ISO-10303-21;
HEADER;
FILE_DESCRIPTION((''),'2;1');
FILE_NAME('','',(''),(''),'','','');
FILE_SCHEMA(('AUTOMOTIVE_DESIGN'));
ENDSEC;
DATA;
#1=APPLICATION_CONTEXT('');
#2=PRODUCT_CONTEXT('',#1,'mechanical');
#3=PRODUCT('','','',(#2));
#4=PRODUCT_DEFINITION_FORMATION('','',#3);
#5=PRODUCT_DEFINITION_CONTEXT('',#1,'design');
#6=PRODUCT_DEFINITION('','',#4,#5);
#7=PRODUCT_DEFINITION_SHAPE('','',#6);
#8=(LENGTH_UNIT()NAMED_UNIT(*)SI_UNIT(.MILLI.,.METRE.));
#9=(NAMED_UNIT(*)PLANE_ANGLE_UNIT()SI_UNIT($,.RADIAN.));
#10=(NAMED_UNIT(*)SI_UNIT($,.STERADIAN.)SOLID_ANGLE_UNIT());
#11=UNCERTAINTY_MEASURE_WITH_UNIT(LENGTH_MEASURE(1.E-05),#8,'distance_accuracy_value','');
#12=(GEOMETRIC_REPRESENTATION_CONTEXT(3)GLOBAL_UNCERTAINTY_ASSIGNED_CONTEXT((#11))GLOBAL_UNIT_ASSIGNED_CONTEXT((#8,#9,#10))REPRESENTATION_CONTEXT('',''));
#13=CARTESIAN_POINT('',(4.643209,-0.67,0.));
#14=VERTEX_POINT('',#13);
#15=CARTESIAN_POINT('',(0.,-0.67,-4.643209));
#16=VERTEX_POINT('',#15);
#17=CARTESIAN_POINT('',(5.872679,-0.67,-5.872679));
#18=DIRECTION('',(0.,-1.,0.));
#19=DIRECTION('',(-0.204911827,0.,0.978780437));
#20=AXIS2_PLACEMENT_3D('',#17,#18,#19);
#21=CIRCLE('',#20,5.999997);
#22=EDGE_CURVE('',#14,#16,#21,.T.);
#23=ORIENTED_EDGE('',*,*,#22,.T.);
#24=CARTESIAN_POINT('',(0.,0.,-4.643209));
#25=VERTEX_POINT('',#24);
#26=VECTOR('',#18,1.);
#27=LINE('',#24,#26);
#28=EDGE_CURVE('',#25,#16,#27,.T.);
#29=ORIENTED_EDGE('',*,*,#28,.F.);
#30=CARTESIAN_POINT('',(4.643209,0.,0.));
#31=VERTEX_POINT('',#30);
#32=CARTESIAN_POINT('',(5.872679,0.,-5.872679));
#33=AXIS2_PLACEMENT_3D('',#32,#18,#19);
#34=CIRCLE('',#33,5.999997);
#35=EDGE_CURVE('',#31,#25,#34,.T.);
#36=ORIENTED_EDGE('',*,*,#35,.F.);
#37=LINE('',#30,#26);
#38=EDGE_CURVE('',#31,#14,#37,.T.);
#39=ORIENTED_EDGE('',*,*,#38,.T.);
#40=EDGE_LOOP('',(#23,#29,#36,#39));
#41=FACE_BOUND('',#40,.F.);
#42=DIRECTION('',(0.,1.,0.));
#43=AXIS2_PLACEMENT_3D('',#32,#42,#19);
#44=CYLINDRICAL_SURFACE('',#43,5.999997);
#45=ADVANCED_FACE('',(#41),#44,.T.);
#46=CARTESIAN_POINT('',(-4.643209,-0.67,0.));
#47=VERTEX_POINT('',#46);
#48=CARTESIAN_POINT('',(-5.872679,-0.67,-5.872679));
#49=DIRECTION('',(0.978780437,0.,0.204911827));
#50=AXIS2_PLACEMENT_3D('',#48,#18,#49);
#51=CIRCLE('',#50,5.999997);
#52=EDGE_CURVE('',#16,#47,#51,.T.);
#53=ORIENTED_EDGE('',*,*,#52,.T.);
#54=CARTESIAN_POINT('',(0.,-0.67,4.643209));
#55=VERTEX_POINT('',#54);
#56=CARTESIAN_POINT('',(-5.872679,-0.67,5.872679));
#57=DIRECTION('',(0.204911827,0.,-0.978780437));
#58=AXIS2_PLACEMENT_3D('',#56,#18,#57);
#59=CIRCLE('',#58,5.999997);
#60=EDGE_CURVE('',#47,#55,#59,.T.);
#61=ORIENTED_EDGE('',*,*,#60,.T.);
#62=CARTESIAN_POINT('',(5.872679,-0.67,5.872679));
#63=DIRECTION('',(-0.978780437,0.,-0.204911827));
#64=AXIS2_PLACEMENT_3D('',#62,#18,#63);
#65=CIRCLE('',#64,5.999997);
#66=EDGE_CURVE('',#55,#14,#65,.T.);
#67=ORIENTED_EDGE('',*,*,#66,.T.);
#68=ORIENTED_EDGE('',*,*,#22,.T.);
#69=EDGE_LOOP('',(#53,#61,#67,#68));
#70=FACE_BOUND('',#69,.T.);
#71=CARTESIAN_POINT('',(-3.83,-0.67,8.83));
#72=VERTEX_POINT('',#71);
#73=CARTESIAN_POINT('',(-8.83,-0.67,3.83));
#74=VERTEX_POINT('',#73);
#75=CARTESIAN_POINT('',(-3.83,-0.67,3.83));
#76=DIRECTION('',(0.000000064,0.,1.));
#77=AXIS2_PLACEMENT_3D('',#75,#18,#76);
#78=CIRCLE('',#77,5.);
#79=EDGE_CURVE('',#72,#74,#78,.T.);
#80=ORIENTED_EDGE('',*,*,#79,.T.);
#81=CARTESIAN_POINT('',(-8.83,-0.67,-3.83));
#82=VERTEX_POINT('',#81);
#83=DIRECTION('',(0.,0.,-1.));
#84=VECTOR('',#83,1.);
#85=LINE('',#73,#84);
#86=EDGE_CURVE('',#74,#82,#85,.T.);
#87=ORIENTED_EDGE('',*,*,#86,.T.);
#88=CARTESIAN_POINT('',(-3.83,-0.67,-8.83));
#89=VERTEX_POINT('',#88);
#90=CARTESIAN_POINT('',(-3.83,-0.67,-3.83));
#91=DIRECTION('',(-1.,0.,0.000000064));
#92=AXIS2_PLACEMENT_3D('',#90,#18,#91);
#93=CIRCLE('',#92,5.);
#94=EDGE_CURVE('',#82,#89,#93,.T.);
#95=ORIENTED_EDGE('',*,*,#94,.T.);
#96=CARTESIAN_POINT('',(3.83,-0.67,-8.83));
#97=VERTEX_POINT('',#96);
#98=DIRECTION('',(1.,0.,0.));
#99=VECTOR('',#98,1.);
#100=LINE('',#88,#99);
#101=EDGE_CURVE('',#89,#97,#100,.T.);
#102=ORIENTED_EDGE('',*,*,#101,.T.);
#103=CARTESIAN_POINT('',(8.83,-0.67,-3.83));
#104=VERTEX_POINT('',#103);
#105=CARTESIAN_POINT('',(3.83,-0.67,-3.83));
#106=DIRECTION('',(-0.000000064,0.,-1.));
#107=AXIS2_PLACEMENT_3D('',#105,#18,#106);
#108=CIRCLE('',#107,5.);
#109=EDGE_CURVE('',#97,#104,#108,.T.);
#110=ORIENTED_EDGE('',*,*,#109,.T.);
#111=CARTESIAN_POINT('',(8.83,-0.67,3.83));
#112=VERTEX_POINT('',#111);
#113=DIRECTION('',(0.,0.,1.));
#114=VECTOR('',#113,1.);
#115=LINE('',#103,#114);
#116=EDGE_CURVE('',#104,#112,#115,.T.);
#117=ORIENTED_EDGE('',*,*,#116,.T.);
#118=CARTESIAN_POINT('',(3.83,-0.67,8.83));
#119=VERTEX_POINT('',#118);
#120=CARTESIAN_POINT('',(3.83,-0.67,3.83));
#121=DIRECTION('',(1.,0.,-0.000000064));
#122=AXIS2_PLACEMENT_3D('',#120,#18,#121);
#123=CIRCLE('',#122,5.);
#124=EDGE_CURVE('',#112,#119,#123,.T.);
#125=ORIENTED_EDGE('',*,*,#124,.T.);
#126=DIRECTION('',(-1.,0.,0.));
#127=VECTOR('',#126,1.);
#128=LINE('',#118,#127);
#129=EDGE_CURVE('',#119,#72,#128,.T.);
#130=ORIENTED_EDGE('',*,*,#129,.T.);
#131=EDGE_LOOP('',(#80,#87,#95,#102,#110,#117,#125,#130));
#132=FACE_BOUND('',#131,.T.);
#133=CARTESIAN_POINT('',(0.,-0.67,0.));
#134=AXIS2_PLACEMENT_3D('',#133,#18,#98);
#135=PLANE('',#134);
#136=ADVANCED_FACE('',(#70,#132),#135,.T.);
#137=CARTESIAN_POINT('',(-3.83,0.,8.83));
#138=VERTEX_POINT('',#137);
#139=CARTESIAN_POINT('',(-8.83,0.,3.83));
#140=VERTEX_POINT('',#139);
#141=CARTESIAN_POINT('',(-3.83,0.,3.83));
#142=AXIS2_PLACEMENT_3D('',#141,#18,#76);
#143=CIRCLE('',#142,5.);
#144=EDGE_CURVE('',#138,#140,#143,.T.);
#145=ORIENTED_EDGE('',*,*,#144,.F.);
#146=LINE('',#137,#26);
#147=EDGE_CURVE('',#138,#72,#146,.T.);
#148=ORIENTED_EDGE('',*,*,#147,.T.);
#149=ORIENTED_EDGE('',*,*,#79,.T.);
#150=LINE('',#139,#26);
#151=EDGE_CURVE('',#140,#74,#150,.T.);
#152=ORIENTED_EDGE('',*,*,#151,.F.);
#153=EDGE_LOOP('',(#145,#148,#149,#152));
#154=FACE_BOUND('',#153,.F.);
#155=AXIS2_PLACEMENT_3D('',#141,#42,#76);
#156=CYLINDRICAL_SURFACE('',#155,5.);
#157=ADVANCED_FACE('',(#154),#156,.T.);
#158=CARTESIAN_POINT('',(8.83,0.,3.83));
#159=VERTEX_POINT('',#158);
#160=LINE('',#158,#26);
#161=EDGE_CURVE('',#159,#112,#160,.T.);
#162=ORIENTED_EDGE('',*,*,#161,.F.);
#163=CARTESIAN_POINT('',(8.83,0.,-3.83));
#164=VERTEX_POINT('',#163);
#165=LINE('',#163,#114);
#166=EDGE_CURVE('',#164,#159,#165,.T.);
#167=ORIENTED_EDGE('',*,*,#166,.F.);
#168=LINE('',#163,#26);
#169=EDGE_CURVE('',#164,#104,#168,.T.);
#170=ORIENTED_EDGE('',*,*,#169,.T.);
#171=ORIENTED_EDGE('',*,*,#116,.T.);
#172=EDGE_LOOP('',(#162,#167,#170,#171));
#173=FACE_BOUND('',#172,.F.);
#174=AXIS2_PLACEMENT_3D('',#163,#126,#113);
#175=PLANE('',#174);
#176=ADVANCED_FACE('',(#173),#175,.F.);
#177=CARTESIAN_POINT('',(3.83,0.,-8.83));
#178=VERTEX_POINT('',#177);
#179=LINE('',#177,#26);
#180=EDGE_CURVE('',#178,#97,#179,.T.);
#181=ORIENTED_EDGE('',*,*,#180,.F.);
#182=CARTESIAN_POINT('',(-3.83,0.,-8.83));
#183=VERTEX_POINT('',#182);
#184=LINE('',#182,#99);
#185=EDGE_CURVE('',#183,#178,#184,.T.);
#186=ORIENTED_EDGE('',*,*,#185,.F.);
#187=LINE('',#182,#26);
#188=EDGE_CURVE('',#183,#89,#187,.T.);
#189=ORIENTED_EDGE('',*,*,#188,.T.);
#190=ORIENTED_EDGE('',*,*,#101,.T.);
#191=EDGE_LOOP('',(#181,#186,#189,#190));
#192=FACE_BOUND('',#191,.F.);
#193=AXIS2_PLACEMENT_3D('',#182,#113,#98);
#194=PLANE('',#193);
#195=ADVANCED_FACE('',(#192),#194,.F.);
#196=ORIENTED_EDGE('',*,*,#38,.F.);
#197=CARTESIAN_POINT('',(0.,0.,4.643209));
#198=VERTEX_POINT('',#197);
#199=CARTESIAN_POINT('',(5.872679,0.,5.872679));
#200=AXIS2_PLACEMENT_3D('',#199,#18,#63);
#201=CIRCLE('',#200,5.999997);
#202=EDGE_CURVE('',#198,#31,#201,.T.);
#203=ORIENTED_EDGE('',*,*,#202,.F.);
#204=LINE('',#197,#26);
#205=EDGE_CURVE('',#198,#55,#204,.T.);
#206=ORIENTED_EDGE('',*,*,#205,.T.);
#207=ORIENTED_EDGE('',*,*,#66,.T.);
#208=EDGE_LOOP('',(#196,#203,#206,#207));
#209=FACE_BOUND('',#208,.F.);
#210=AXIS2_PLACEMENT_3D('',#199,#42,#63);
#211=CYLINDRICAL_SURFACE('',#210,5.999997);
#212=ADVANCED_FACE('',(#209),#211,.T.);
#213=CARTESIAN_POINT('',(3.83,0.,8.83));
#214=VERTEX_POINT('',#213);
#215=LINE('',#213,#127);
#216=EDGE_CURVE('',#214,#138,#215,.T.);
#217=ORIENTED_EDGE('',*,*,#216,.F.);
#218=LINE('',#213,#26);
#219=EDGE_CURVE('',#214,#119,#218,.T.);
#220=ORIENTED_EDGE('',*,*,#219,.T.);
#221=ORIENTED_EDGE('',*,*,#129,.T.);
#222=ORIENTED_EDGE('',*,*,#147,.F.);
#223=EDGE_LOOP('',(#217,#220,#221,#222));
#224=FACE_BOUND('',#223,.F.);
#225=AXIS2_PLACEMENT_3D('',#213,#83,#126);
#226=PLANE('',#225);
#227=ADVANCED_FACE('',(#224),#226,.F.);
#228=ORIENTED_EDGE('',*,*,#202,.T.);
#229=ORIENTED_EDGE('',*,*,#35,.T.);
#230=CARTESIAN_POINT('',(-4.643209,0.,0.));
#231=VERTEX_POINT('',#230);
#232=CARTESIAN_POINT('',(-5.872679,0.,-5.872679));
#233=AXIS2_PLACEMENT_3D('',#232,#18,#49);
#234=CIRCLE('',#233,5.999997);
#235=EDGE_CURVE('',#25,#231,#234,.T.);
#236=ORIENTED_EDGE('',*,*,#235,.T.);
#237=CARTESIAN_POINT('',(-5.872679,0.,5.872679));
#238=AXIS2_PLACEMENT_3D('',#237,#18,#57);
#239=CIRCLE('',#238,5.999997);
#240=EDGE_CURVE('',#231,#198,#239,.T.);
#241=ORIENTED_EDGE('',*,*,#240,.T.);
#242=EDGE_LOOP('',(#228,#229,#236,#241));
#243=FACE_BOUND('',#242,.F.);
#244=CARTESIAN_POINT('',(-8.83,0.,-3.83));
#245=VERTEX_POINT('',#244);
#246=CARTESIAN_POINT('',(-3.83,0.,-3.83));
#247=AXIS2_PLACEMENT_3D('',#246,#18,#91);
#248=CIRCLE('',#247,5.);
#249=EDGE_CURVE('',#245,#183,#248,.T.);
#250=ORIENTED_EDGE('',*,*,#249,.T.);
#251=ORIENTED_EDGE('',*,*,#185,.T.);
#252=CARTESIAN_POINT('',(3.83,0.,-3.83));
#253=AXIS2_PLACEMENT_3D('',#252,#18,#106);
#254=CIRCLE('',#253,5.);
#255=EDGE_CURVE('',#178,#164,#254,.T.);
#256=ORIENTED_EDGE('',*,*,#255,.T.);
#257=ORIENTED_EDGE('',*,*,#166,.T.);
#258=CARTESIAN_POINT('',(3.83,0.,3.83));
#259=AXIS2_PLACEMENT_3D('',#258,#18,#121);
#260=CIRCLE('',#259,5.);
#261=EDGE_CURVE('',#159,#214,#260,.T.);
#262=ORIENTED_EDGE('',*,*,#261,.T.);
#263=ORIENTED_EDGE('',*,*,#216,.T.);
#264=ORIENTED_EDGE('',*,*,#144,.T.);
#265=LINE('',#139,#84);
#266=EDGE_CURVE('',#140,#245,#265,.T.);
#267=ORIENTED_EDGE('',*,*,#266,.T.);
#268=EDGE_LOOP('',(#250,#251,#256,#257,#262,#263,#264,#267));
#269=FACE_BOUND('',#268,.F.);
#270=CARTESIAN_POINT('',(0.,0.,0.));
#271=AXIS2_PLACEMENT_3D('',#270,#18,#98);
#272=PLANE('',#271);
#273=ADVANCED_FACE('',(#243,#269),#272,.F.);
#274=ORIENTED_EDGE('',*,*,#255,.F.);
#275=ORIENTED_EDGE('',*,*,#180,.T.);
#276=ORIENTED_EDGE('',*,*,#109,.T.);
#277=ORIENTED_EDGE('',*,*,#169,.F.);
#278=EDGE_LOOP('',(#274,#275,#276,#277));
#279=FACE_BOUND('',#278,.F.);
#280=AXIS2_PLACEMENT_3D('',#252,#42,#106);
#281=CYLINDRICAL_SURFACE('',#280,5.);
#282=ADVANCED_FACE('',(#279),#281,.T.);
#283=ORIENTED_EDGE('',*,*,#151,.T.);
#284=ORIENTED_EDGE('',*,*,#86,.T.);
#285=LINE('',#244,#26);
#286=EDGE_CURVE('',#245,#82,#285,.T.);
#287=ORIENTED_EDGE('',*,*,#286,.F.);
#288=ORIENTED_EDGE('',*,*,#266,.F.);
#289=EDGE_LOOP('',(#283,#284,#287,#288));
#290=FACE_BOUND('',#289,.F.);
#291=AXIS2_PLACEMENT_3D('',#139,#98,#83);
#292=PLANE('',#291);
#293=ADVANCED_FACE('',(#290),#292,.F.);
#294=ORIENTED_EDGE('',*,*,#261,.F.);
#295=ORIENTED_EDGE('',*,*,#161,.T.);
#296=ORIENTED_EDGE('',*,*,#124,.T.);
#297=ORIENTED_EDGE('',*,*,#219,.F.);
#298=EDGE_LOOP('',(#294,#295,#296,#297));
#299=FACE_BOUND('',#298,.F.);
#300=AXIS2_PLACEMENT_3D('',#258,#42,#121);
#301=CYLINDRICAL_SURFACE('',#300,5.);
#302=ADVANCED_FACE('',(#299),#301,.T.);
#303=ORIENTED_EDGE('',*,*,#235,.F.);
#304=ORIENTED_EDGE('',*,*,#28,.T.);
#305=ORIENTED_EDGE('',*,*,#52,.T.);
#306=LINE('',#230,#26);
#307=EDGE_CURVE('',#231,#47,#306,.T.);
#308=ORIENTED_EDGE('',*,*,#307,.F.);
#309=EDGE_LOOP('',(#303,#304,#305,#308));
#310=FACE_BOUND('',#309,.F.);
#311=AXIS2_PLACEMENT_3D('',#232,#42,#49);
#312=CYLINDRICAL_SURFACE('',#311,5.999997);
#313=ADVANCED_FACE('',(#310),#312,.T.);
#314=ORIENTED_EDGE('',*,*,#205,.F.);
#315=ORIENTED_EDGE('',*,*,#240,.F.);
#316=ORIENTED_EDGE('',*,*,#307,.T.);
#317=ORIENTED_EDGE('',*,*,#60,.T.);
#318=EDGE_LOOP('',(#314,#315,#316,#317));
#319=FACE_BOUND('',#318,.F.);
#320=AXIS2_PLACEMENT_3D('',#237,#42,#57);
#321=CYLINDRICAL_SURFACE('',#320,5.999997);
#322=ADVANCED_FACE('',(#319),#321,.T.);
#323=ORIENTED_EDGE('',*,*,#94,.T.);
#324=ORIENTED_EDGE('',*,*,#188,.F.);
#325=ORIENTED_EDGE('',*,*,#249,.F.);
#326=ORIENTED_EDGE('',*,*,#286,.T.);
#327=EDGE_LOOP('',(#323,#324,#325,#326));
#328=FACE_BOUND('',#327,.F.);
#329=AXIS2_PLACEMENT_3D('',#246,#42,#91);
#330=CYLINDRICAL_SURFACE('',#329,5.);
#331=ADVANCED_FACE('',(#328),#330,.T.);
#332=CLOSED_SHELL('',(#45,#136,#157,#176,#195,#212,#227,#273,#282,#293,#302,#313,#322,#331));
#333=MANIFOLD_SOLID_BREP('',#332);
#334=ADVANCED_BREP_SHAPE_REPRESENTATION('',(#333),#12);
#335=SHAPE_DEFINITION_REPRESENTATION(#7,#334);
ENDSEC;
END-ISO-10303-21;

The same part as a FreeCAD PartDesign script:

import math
import FreeCAD as App
import Part
import Sketcher
from FreeCAD import Vector
Q = App.Units.Quantity

doc = App.newDocument("Part")
body = doc.addObject("PartDesign::Body", "Body")

# Sketch on XZ plane
sketch1 = body.newObject("Sketcher::SketchObject", "Sketch")
sketch1.AttachmentSupport = (doc.getObject("XZ_Plane"), [""])
sketch1.MapMode = "FlatFace"
sketch1.addGeometry(Part.LineSegment(Vector(3.83, 8.83, 0), Vector(-3.83, 8.83, 0)), False)
sketch1.addGeometry(Part.ArcOfCircle(Part.Circle(Vector(-3.83, 3.83, 0), Vector(0, 0, 1), 5), math.radians(89.999996), math.radians(180.000004)), False)
sketch1.addGeometry(Part.LineSegment(Vector(-8.83, 3.83, 0), Vector(-8.83, -3.83, 0)), False)
sketch1.addGeometry(Part.ArcOfCircle(Part.Circle(Vector(-3.83, -3.83, 0), Vector(0, 0, 1), 5), math.radians(179.999996), math.radians(270.000004)), False)
sketch1.addGeometry(Part.LineSegment(Vector(-3.83, -8.83, 0), Vector(3.83, -8.83, 0)), False)
sketch1.addGeometry(Part.ArcOfCircle(Part.Circle(Vector(3.83, -3.83, 0), Vector(0, 0, 1), 5), math.radians(-90.000004), math.radians(0.000004)), False)
sketch1.addGeometry(Part.LineSegment(Vector(8.83, -3.83, 0), Vector(8.83, 3.83, 0)), False)
sketch1.addGeometry(Part.ArcOfCircle(Part.Circle(Vector(3.83, 3.83, 0), Vector(0, 0, 1), 5), math.radians(-0.000004), math.radians(90.000004)), False)
sketch1.addGeometry(Part.ArcOfCircle(Part.Circle(Vector(5.872679, 5.872679, 0), Vector(0, 0, 1), 5.999997), math.radians(-168.175662), math.radians(-101.824338)), False)
sketch1.addGeometry(Part.ArcOfCircle(Part.Circle(Vector(5.872679, -5.872679, 0), Vector(0, 0, 1), 5.999997), math.radians(101.824338), math.radians(168.175662)), False)
sketch1.addGeometry(Part.ArcOfCircle(Part.Circle(Vector(-5.872679, -5.872679, 0), Vector(0, 0, 1), 5.999997), math.radians(11.824338), math.radians(78.175662)), False)
sketch1.addGeometry(Part.ArcOfCircle(Part.Circle(Vector(-5.872679, 5.872679, 0), Vector(0, 0, 1), 5.999997), math.radians(-78.175662), math.radians(-11.824338)), False)
sketch1.addConstraint(Sketcher.Constraint("Tangent", 0, 2, 1, 1))
sketch1.addConstraint(Sketcher.Constraint("Tangent", 1, 2, 2, 1))
sketch1.addConstraint(Sketcher.Constraint("Tangent", 2, 2, 3, 1))
sketch1.addConstraint(Sketcher.Constraint("Tangent", 3, 2, 4, 1))
sketch1.addConstraint(Sketcher.Constraint("Tangent", 4, 2, 5, 1))
sketch1.addConstraint(Sketcher.Constraint("Tangent", 5, 2, 6, 1))
sketch1.addConstraint(Sketcher.Constraint("Tangent", 6, 2, 7, 1))
sketch1.addConstraint(Sketcher.Constraint("Tangent", 7, 2, 0, 1))
sketch1.addConstraint(Sketcher.Constraint("Coincident", 8, 2, 9, 1))
sketch1.addConstraint(Sketcher.Constraint("Coincident", 9, 2, 10, 1))
sketch1.addConstraint(Sketcher.Constraint("Coincident", 10, 2, 11, 1))
sketch1.addConstraint(Sketcher.Constraint("Coincident", 11, 2, 8, 1))
sketch1.addConstraint(Sketcher.Constraint("Horizontal", 0))
sketch1.addConstraint(Sketcher.Constraint("Vertical", 2))
sketch1.addConstraint(Sketcher.Constraint("Horizontal", 4))
sketch1.addConstraint(Sketcher.Constraint("Vertical", 6))
sketch1.addConstraint(Sketcher.Constraint("Equal", 1, 3))
sketch1.addConstraint(Sketcher.Constraint("Equal", 3, 5))
sketch1.addConstraint(Sketcher.Constraint("Equal", 5, 7))
sketch1.addConstraint(Sketcher.Constraint("Equal", 8, 9))
sketch1.addConstraint(Sketcher.Constraint("Equal", 9, 10))
sketch1.addConstraint(Sketcher.Constraint("Equal", 10, 11))
sketch1.addConstraint(Sketcher.Constraint("Symmetric", 1, 3, 5, 3, -1, 1))
sketch1.addConstraint(Sketcher.Constraint("Symmetric", 8, 3, 10, 3, -1, 1))
sketch1.addConstraint(Sketcher.Constraint("Symmetric", 9, 3, 11, 3, -1, 1))
sketch1.addConstraint(Sketcher.Constraint("Symmetric", 9, 3, 10, 3, -2))
sketch1.addConstraint(Sketcher.Constraint("Equal", 4, 2))
sketch1.addConstraint(Sketcher.Constraint("Radius", 1, Q("5 mm")))
sketch1.addConstraint(Sketcher.Constraint("DistanceX", 0, 2, 0, 1, Q("7.66 mm")))
sketch1.addConstraint(Sketcher.Constraint("Radius", 8, Q("5.999997 mm")))
sketch1.addConstraint(Sketcher.Constraint("DistanceX", -1, 1, 8, 3, Q("5.872679 mm")))
sketch1.addConstraint(Sketcher.Constraint("DistanceY", -1, 1, 8, 3, Q("5.872679 mm")))
pad1 = body.newObject("PartDesign::Pad", "Pad")
pad1.Profile = sketch1
pad1.Length = 0.67

doc.recompute()
